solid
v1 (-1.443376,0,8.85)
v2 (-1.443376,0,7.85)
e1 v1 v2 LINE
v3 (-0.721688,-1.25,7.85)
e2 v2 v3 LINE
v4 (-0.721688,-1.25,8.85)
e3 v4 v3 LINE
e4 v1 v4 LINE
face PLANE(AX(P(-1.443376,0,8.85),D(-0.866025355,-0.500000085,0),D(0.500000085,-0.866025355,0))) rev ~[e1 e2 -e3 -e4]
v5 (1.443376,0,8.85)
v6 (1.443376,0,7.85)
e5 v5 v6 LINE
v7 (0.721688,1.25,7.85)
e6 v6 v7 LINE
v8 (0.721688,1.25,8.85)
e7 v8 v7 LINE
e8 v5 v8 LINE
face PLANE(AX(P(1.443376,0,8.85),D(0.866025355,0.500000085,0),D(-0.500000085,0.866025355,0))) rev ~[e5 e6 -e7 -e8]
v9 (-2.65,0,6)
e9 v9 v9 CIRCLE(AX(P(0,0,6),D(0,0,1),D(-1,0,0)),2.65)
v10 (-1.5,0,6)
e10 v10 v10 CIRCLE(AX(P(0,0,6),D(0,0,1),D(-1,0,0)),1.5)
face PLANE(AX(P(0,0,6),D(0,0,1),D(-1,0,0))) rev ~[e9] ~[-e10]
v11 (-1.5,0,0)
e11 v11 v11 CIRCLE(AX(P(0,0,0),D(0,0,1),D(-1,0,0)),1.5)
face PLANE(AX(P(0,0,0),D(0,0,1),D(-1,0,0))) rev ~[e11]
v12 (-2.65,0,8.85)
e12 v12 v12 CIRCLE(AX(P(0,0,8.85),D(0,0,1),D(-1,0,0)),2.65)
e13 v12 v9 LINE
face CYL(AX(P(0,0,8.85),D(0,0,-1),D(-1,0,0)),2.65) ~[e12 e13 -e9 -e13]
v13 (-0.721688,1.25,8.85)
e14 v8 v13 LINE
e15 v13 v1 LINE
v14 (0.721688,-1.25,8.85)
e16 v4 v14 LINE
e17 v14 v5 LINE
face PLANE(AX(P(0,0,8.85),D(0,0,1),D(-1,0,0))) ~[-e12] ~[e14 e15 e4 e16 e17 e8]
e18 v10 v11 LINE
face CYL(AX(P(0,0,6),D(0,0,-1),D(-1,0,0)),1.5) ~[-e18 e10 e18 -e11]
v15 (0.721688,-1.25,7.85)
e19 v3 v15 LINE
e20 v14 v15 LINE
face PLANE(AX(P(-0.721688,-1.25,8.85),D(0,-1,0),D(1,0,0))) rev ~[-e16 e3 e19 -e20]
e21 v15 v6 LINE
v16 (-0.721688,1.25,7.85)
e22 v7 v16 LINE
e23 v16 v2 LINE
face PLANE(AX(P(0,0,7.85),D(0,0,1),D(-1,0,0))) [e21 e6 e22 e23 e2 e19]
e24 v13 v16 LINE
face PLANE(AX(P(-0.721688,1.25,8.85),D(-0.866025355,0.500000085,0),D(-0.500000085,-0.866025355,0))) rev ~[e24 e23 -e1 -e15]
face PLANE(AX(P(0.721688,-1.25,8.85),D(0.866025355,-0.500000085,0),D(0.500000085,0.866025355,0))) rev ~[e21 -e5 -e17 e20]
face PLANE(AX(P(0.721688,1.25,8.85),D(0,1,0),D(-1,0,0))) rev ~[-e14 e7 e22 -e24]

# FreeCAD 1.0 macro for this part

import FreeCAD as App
import Part
import Sketcher
Q = App.Units.Quantity

doc = App.newDocument("Part")
body = doc.addObject("PartDesign::Body", "Body")

sketch1 = body.newObject("Sketcher::SketchObject", "Sketch")
sketch1.AttachmentSupport = (doc.getObject("XZ_Plane"), [""])
sketch1.MapMode = "FlatFace"
sketch1.addGeometry([
    Part.LineSegment(App.Vector(0, 8.8, 0), App.Vector(-2.6, 8.8, 0)),
    Part.LineSegment(App.Vector(-2.6, 8.8, 0), App.Vector(-2.6, 6, 0)),
    Part.LineSegment(App.Vector(-2.6, 6, 0), App.Vector(-1.5, 6, 0)),
    Part.LineSegment(App.Vector(-1.5, 6, 0), App.Vector(-1.5, 0, 0)),
    Part.LineSegment(App.Vector(-1.5, 0, 0), App.Vector(0, 0, 0)),
    Part.LineSegment(App.Vector(0, 0, 0), App.Vector(0, 8.8, 0)),
], False)
sketch1.addConstraint([
    Sketcher.Constraint("Coincident", 0, 2, 1, 1),
    Sketcher.Constraint("Coincident", 1, 2, 2, 1),
    Sketcher.Constraint("Coincident", 2, 2, 3, 1),
    Sketcher.Constraint("Coincident", 3, 2, 4, 1),
    Sketcher.Constraint("Coincident", 4, 2, 5, 1),
    Sketcher.Constraint("Coincident", 5, 2, 0, 1),
    Sketcher.Constraint("Horizontal", 0),
    Sketcher.Constraint("Vertical", 1),
    Sketcher.Constraint("Horizontal", 2),
    Sketcher.Constraint("Vertical", 3),
    Sketcher.Constraint("Horizontal", 4),
    Sketcher.Constraint("Vertical", 5),
    Sketcher.Constraint("Coincident", 4, 2, -1, 1),
    Sketcher.Constraint("DistanceY", 3, 2, 3, 1, 6.0),
    Sketcher.Constraint("DistanceX", 4, 1, 4, 2, 1.5),
    Sketcher.Constraint("DistanceX", 0, 2, 0, 1, 2.65),
    Sketcher.Constraint("DistanceY", 1, 2, 1, 1, 2.85),
])
revolution = body.newObject("PartDesign::Revolution", "Revolution")
revolution.Profile = sketch1
revolution.ReferenceAxis = (sketch1, ["V_Axis"])
revolution.Angle = 360

sketch2 = body.newObject("Sketcher::SketchObject", "Sketch001")
sketch2.AttachmentSupport = (doc.getObject("XY_Plane"), [""])
sketch2.MapMode = "FlatFace"
sketch2.AttachmentOffset = App.Placement(App.Vector(0, 0, 8.85), App.Rotation())
sketch2.addGeometry([
    Part.LineSegment(App.Vector(-0.7, -1.2, 0), App.Vector(0.7, -1.2, 0)),
    Part.LineSegment(App.Vector(0.7, -1.2, 0), App.Vector(1.4, 0, 0)),
    Part.LineSegment(App.Vector(1.4, 0, 0), App.Vector(0.7, 1.2, 0)),
    Part.LineSegment(App.Vector(0.7, 1.2, 0), App.Vector(-0.7, 1.2, 0)),
    Part.LineSegment(App.Vector(-0.7, 1.2, 0), App.Vector(-1.4, 0, 0)),
    Part.LineSegment(App.Vector(-1.4, 0, 0), App.Vector(-0.7, -1.2, 0)),
], False)
sketch2.addConstraint([
    Sketcher.Constraint("Coincident", 0, 2, 1, 1),
    Sketcher.Constraint("Coincident", 1, 2, 2, 1),
    Sketcher.Constraint("Coincident", 2, 2, 3, 1),
    Sketcher.Constraint("Coincident", 3, 2, 4, 1),
    Sketcher.Constraint("Coincident", 4, 2, 5, 1),
    Sketcher.Constraint("Coincident", 5, 2, 0, 1),
    Sketcher.Constraint("Horizontal", 0),
    Sketcher.Constraint("Horizontal", 3),
    Sketcher.Constraint("Symmetric", 0, 2, 3, 2, -1, 1),
    Sketcher.Constraint("Symmetric", 1, 2, 4, 2, -1, 1),
    Sketcher.Constraint("PointOnObject", 1, 2, -1),
    Sketcher.Constraint("Parallel", 2, 5),
    Sketcher.Constraint("Vertical", 0, 2, 2, 2),
    Sketcher.Constraint("Angle", 1, Q("59.999994 deg")),
    Sketcher.Constraint("DistanceY", 0, 2, 2, 2, 2.5),
    Sketcher.Constraint("DistanceX", 0, 1, 0, 2, 1.443376),
])
pocket1 = body.newObject("PartDesign::Pocket", "Pocket")
pocket1.Profile = sketch2
pocket1.Length = 1

doc.recompute()
